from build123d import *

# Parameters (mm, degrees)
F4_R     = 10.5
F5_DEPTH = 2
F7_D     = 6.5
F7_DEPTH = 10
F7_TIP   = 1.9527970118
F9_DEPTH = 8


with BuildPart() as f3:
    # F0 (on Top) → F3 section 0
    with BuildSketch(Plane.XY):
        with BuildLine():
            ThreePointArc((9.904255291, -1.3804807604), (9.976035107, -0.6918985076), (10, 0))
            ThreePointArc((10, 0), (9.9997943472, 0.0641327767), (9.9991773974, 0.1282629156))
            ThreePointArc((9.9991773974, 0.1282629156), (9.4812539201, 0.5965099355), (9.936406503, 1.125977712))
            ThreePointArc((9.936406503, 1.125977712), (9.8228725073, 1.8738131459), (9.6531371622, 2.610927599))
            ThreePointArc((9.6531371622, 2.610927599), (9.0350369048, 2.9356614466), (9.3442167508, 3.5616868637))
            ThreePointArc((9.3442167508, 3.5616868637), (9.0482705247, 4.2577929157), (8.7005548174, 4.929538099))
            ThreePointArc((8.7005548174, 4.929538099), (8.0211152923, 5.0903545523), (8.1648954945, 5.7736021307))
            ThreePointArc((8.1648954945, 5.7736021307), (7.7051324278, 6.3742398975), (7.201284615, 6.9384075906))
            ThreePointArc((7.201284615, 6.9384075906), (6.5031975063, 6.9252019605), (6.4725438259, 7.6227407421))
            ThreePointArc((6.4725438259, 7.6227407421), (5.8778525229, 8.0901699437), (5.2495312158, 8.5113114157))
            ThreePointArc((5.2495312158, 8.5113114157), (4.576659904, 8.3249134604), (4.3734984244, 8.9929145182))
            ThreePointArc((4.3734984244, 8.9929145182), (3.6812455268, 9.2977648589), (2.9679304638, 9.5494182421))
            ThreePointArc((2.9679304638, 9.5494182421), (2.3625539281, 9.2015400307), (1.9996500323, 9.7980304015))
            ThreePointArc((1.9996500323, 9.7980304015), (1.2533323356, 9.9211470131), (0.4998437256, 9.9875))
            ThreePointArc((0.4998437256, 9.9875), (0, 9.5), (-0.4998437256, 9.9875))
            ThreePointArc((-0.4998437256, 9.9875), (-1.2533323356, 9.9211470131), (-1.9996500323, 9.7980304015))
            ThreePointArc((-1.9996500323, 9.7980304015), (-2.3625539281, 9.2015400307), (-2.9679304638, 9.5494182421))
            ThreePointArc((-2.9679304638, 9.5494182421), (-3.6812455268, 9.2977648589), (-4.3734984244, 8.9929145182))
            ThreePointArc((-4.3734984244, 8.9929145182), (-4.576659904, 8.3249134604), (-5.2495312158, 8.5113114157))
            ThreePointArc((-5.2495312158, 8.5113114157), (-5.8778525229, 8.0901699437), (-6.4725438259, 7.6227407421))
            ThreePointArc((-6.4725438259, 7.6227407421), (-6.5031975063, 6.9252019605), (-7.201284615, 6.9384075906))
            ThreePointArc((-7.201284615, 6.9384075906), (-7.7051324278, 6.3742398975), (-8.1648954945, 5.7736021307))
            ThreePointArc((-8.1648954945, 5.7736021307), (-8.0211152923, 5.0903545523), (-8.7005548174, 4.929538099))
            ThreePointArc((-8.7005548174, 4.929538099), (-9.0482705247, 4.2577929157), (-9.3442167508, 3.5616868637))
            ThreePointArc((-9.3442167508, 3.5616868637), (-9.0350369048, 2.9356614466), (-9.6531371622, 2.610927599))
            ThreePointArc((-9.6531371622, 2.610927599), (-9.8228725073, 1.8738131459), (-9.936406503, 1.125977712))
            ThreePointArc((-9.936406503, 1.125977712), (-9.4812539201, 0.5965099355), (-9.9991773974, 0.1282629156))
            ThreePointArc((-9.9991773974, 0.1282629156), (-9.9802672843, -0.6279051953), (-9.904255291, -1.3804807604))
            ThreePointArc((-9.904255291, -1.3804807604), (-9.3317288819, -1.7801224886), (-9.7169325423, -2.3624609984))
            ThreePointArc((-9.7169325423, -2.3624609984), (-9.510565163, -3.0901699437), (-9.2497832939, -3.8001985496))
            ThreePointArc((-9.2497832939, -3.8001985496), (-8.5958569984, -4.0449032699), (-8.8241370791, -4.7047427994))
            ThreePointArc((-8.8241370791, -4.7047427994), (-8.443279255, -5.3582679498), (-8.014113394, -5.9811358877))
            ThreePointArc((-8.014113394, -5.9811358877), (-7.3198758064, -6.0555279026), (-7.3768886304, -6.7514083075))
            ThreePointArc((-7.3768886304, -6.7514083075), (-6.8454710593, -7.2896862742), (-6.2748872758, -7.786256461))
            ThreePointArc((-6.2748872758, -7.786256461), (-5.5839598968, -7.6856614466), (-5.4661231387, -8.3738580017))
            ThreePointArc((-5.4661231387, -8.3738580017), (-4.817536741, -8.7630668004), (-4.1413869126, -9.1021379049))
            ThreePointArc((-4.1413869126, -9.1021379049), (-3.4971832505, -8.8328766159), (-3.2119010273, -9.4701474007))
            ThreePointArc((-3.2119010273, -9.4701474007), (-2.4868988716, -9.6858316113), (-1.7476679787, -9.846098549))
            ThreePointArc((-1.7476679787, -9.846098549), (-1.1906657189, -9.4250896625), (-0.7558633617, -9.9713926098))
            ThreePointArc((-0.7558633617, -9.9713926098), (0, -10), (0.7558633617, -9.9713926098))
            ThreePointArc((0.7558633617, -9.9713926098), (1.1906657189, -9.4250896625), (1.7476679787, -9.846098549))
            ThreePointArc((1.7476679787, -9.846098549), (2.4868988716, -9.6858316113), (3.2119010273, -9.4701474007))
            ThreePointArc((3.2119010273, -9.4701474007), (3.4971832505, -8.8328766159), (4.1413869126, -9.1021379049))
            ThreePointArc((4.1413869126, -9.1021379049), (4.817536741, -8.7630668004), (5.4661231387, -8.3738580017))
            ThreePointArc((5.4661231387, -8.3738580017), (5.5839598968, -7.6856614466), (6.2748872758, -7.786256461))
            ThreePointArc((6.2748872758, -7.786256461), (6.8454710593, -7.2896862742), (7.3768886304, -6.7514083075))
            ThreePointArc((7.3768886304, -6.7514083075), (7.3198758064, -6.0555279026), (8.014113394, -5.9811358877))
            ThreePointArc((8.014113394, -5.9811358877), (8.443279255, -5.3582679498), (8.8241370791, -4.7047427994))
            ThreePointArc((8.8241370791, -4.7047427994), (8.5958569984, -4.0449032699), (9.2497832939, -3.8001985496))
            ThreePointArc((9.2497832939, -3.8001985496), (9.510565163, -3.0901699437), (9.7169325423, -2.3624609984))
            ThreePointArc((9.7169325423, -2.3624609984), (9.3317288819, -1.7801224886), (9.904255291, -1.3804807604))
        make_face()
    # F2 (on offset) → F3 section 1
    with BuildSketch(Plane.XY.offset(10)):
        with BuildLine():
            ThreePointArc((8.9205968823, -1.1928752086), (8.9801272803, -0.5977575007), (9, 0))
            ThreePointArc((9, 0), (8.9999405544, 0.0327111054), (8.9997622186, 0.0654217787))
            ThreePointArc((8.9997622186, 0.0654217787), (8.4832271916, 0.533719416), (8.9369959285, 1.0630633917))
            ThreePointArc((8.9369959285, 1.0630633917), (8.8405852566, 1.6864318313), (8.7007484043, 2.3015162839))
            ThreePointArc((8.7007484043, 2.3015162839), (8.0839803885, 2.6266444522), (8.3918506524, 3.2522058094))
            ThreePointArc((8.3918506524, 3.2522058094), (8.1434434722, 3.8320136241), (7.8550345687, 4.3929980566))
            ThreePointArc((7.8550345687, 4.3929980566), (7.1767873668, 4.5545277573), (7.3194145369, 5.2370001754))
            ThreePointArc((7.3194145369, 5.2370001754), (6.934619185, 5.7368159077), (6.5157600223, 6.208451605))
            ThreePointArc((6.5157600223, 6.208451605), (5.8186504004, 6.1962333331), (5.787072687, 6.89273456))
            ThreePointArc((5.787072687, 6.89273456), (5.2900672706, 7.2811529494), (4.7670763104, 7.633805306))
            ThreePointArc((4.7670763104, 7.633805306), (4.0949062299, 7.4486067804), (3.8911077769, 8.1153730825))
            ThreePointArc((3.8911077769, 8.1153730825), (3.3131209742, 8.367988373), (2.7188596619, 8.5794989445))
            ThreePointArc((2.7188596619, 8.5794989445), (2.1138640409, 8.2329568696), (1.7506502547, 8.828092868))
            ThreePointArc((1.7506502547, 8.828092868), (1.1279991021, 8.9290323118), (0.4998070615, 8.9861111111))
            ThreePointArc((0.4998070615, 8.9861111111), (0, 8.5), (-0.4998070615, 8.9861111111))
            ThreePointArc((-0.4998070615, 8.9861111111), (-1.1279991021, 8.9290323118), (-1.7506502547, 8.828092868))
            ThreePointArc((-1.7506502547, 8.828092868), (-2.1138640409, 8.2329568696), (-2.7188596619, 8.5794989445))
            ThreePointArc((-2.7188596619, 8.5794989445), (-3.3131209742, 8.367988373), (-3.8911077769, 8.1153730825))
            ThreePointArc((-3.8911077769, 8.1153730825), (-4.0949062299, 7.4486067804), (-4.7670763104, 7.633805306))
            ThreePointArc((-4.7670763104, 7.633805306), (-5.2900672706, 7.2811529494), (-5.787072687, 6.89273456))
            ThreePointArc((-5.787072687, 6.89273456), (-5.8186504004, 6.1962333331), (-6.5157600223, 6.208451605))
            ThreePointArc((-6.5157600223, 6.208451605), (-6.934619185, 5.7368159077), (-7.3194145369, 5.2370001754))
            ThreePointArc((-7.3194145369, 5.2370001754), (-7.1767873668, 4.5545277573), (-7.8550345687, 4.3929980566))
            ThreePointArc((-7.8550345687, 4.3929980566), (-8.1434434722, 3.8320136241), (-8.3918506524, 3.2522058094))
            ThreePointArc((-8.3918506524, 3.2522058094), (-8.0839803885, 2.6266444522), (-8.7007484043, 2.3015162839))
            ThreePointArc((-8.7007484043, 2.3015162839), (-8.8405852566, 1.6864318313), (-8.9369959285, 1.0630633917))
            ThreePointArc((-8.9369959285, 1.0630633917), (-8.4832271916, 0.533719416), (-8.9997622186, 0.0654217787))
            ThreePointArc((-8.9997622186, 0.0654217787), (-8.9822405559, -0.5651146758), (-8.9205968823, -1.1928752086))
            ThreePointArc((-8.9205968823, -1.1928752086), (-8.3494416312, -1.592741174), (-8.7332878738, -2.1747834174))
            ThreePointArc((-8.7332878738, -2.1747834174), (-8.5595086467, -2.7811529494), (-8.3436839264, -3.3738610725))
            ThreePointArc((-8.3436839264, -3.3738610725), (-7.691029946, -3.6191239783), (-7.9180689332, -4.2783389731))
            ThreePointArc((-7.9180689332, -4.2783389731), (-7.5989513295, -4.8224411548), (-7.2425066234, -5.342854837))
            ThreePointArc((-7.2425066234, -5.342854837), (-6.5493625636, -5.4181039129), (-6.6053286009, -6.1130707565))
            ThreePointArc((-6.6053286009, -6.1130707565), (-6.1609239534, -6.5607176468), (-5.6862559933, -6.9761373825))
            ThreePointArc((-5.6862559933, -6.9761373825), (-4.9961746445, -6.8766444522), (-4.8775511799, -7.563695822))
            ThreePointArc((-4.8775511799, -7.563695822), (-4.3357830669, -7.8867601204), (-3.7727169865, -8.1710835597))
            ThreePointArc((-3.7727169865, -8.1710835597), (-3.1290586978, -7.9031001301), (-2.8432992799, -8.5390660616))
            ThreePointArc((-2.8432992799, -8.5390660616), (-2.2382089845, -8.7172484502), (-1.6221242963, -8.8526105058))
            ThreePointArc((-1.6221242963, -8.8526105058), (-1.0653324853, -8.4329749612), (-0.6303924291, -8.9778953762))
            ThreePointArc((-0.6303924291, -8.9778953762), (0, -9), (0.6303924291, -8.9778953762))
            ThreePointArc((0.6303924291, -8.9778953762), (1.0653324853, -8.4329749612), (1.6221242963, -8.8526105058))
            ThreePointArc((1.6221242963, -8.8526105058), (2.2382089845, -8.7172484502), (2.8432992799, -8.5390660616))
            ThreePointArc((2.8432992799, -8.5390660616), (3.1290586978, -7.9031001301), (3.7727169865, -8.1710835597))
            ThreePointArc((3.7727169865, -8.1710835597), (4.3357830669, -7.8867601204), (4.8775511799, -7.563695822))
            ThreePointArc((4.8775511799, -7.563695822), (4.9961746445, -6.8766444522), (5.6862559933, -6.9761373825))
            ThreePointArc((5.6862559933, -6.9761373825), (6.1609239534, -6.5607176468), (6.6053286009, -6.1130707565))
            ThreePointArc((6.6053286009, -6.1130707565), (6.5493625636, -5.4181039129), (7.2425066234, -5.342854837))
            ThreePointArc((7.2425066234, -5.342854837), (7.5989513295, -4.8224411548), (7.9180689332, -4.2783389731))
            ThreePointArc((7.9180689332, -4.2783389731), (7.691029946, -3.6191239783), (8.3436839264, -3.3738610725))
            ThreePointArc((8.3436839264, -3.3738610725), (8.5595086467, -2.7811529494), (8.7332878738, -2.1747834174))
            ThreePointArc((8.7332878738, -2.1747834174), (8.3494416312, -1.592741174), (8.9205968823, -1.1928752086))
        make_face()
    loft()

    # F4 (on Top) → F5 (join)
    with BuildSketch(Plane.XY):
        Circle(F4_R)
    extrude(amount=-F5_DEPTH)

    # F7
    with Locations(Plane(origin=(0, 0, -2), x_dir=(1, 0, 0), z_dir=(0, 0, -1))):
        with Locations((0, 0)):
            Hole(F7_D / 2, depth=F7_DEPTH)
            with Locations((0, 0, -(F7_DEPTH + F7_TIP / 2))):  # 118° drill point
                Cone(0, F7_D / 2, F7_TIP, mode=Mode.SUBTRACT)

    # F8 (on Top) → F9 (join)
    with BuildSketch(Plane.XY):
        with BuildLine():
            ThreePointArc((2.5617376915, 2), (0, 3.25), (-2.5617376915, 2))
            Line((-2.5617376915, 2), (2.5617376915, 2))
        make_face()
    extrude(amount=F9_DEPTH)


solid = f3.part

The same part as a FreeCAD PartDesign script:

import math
import FreeCAD as App
import Part
import Sketcher
from FreeCAD import Vector
Q = App.Units.Quantity

doc = App.newDocument("Part")
body = doc.addObject("PartDesign::Body", "Body")

# Sketch on XY plane
sketch1 = body.newObject("Sketcher::SketchObject", "Sketch")
sketch1.AttachmentSupport = (doc.getObject("XY_Plane"), [""])
sketch1.MapMode = "FlatFace"
sketch1.addGeometry([
    Part.ArcOfCircle(Part.Circle(Vector(0, 0, 0), Vector(0, 0, 1), 10), math.radians(-7.93), math.radians(0)),  # 0
    Part.ArcOfCircle(Part.Circle(Vector(0, 0, 0), Vector(0, 0, 1), 10), math.radians(0), math.radians(0.73)),  # 1
    Part.ArcOfCircle(Part.Circle(Vector(9.98, 0.63, 0), Vector(0, 0, 1), 0.5), math.radians(95), math.radians(272)),  # 2
    Part.ArcOfCircle(Part.Circle(Vector(0, 0, 0), Vector(0, 0, 1), 10), math.radians(6.47), math.radians(15.13)),  # 3
    Part.ArcOfCircle(Part.Circle(Vector(9.51, 3.09, 0), Vector(0, 0, 1), 0.5), math.radians(109), math.radians(287)),  # 4
    Part.ArcOfCircle(Part.Circle(Vector(0, 0, 0), Vector(0, 0, 1), 10), math.radians(20.87), math.radians(29.53)),  # 5
    Part.ArcOfCircle(Part.Circle(Vector(8.44, 5.36, 0), Vector(0, 0, 1), 0.5), math.radians(124), math.radians(301)),  # 6
    Part.ArcOfCircle(Part.Circle(Vector(0, 0, 0), Vector(0, 0, 1), 10), math.radians(35.27), math.radians(43.93)),  # 7
    Part.ArcOfCircle(Part.Circle(Vector(6.85, 7.29, 0), Vector(0, 0, 1), 0.5), math.radians(138), math.radians(315)),  # 8
    Part.ArcOfCircle(Part.Circle(Vector(0, 0, 0), Vector(0, 0, 1), 10), math.radians(49.67), math.radians(58.33)),  # 9
    Part.ArcOfCircle(Part.Circle(Vector(4.82, 8.76, 0), Vector(0, 0, 1), 0.5), math.radians(153), math.radians(330)),  # 10
    Part.ArcOfCircle(Part.Circle(Vector(0, 0, 0), Vector(0, 0, 1), 10), math.radians(64.07), math.radians(72.73)),  # 11
    Part.ArcOfCircle(Part.Circle(Vector(2.49, 9.69, 0), Vector(0, 0, 1), 0.5), math.radians(167), math.radians(344)),  # 12
    Part.ArcOfCircle(Part.Circle(Vector(0, 0, 0), Vector(0, 0, 1), 10), math.radians(78.47), math.radians(87.13)),  # 13
    Part.ArcOfCircle(Part.Circle(Vector(0, 10, 0), Vector(0, 0, 1), 0.5), math.radians(-179), math.radians(-1)),  # 14
    Part.ArcOfCircle(Part.Circle(Vector(0, 0, 0), Vector(0, 0, 1), 10), math.radians(92.87), math.radians(101.53)),  # 15
    Part.ArcOfCircle(Part.Circle(Vector(-2.49, 9.69, 0), Vector(0, 0, 1), 0.5), math.radians(-164), math.radians(13)),  # 16
    Part.ArcOfCircle(Part.Circle(Vector(0, 0, 0), Vector(0, 0, 1), 10), math.radians(107.27), math.radians(115.93)),  # 17
    Part.ArcOfCircle(Part.Circle(Vector(-4.82, 8.76, 0), Vector(0, 0, 1), 0.5), math.radians(-150), math.radians(27)),  # 18
    Part.ArcOfCircle(Part.Circle(Vector(0, 0, 0), Vector(0, 0, 1), 10), math.radians(121.67), math.radians(130.33)),  # 19
    Part.ArcOfCircle(Part.Circle(Vector(-6.85, 7.29, 0), Vector(0, 0, 1), 0.5), math.radians(-135), math.radians(42)),  # 20
    Part.ArcOfCircle(Part.Circle(Vector(0, 0, 0), Vector(0, 0, 1), 10), math.radians(136.07), math.radians(144.73)),  # 21
    Part.ArcOfCircle(Part.Circle(Vector(-8.44, 5.36, 0), Vector(0, 0, 1), 0.5), math.radians(-121), math.radians(56)),  # 22
    Part.ArcOfCircle(Part.Circle(Vector(0, 0, 0), Vector(0, 0, 1), 10), math.radians(150.47), math.radians(159.13)),  # 23
    Part.ArcOfCircle(Part.Circle(Vector(-9.51, 3.09, 0), Vector(0, 0, 1), 0.5), math.radians(-107), math.radians(71)),  # 24
    Part.ArcOfCircle(Part.Circle(Vector(0, 0, 0), Vector(0, 0, 1), 10), math.radians(164.87), math.radians(173.53)),  # 25
    Part.ArcOfCircle(Part.Circle(Vector(-9.98, 0.63, 0), Vector(0, 0, 1), 0.5), math.radians(-92), math.radians(85)),  # 26
    Part.ArcOfCircle(Part.Circle(Vector(0, 0, 0), Vector(0, 0, 1), 10), math.radians(179.27), math.radians(187.93)),  # 27
    Part.ArcOfCircle(Part.Circle(Vector(-9.82, -1.87, 0), Vector(0, 0, 1), 0.5), math.radians(-78), math.radians(99)),  # 28
    Part.ArcOfCircle(Part.Circle(Vector(0, 0, 0), Vector(0, 0, 1), 10), math.radians(-166.33), math.radians(-157.67)),  # 29
    Part.ArcOfCircle(Part.Circle(Vector(-9.05, -4.26, 0), Vector(0, 0, 1), 0.5), math.radians(-63), math.radians(114)),  # 30
    Part.ArcOfCircle(Part.Circle(Vector(0, 0, 0), Vector(0, 0, 1), 10), math.radians(-151.93), math.radians(-143.27)),  # 31
    Part.ArcOfCircle(Part.Circle(Vector(-7.71, -6.37, 0), Vector(0, 0, 1), 0.5), math.radians(-49), math.radians(128)),  # 32
    Part.ArcOfCircle(Part.Circle(Vector(0, 0, 0), Vector(0, 0, 1), 10), math.radians(-137.53), math.radians(-128.87)),  # 33
    Part.ArcOfCircle(Part.Circle(Vector(-5.88, -8.09, 0), Vector(0, 0, 1), 0.5), math.radians(-35), math.radians(143)),  # 34
    Part.ArcOfCircle(Part.Circle(Vector(0, 0, 0), Vector(0, 0, 1), 10), math.radians(-123.13), math.radians(-114.47)),  # 35
    Part.ArcOfCircle(Part.Circle(Vector(-3.68, -9.3, 0), Vector(0, 0, 1), 0.5), math.radians(-20), math.radians(157)),  # 36
    Part.ArcOfCircle(Part.Circle(Vector(0, 0, 0), Vector(0, 0, 1), 10), math.radians(-108.73), math.radians(-100.07)),  # 37
    Part.ArcOfCircle(Part.Circle(Vector(-1.25, -9.92, 0), Vector(0, 0, 1), 0.5), math.radians(-6), math.radians(171)),  # 38
    Part.ArcOfCircle(Part.Circle(Vector(0, 0, 0), Vector(0, 0, 1), 10), math.radians(-94.33), math.radians(-85.67)),  # 39
    Part.ArcOfCircle(Part.Circle(Vector(1.25, -9.92, 0), Vector(0, 0, 1), 0.5), math.radians(9), math.radians(186)),  # 40
    Part.ArcOfCircle(Part.Circle(Vector(0, 0, 0), Vector(0, 0, 1), 10), math.radians(-79.93), math.radians(-71.27)),  # 41
    Part.ArcOfCircle(Part.Circle(Vector(3.68, -9.3, 0), Vector(0, 0, 1), 0.5), math.radians(23), math.radians(200)),  # 42
    Part.ArcOfCircle(Part.Circle(Vector(0, 0, 0), Vector(0, 0, 1), 10), math.radians(-65.53), math.radians(-56.87)),  # 43
    Part.ArcOfCircle(Part.Circle(Vector(5.88, -8.09, 0), Vector(0, 0, 1), 0.5), math.radians(37), math.radians(215)),  # 44
    Part.ArcOfCircle(Part.Circle(Vector(0, 0, 0), Vector(0, 0, 1), 10), math.radians(-51.13), math.radians(-42.47)),  # 45
    Part.ArcOfCircle(Part.Circle(Vector(7.71, -6.37, 0), Vector(0, 0, 1), 0.5), math.radians(52), math.radians(229)),  # 46
    Part.ArcOfCircle(Part.Circle(Vector(0, 0, 0), Vector(0, 0, 1), 10), math.radians(-36.73), math.radians(-28.07)),  # 47
    Part.ArcOfCircle(Part.Circle(Vector(9.05, -4.26, 0), Vector(0, 0, 1), 0.5), math.radians(66), math.radians(243)),  # 48
    Part.ArcOfCircle(Part.Circle(Vector(0, 0, 0), Vector(0, 0, 1), 10), math.radians(-22.33), math.radians(-13.67)),  # 49
    Part.ArcOfCircle(Part.Circle(Vector(9.82, -1.87, 0), Vector(0, 0, 1), 0.5), math.radians(81), math.radians(258)),  # 50
], False)
sketch1.addConstraint([
    Sketcher.Constraint("Tangent", 0, 2, 1, 1),
    Sketcher.Constraint("Coincident", 1, 2, 2, 2),
    Sketcher.Constraint("Coincident", 2, 1, 3, 1),
    Sketcher.Constraint("Coincident", 3, 2, 4, 2),
    Sketcher.Constraint("Coincident", 4, 1, 5, 1),
    Sketcher.Constraint("Coincident", 5, 2, 6, 2),
    Sketcher.Constraint("Coincident", 6, 1, 7, 1),
    Sketcher.Constraint("Coincident", 7, 2, 8, 2),
    Sketcher.Constraint("Coincident", 8, 1, 9, 1),
    Sketcher.Constraint("Coincident", 9, 2, 10, 2),
    Sketcher.Constraint("Coincident", 10, 1, 11, 1),
    Sketcher.Constraint("Coincident", 11, 2, 12, 2),
    Sketcher.Constraint("Coincident", 12, 1, 13, 1),
    Sketcher.Constraint("Coincident", 13, 2, 14, 2),
    Sketcher.Constraint("Coincident", 14, 1, 15, 1),
    Sketcher.Constraint("Coincident", 15, 2, 16, 2),
    Sketcher.Constraint("Coincident", 16, 1, 17, 1),
    Sketcher.Constraint("Coincident", 17, 2, 18, 2),
    Sketcher.Constraint("Coincident", 18, 1, 19, 1),
    Sketcher.Constraint("Coincident", 19, 2, 20, 2),
    Sketcher.Constraint("Coincident", 20, 1, 21, 1),
    Sketcher.Constraint("Coincident", 21, 2, 22, 2),
    Sketcher.Constraint("Coincident", 22, 1, 23, 1),
    Sketcher.Constraint("Coincident", 23, 2, 24, 2),
    Sketcher.Constraint("Coincident", 24, 1, 25, 1),
    Sketcher.Constraint("Coincident", 25, 2, 26, 2),
    Sketcher.Constraint("Coincident", 26, 1, 27, 1),
    Sketcher.Constraint("Coincident", 27, 2, 28, 2),
    Sketcher.Constraint("Coincident", 28, 1, 29, 1),
    Sketcher.Constraint("Coincident", 29, 2, 30, 2),
    Sketcher.Constraint("Coincident", 30, 1, 31, 1),
    Sketcher.Constraint("Coincident", 31, 2, 32, 2),
    Sketcher.Constraint("Coincident", 32, 1, 33, 1),
    Sketcher.Constraint("Coincident", 33, 2, 34, 2),
    Sketcher.Constraint("Coincident", 34, 1, 35, 1),
    Sketcher.Constraint("Coincident", 35, 2, 36, 2),
    Sketcher.Constraint("Coincident", 36, 1, 37, 1),
    Sketcher.Constraint("Coincident", 37, 2, 38, 2),
    Sketcher.Constraint("Coincident", 38, 1, 39, 1),
    Sketcher.Constraint("Coincident", 39, 2, 40, 2),
    Sketcher.Constraint("Coincident", 40, 1, 41, 1),
    Sketcher.Constraint("Coincident", 41, 2, 42, 2),
    Sketcher.Constraint("Coincident", 42, 1, 43, 1),
    Sketcher.Constraint("Coincident", 43, 2, 44, 2),
    Sketcher.Constraint("Coincident", 44, 1, 45, 1),
    Sketcher.Constraint("Coincident", 45, 2, 46, 2),
    Sketcher.Constraint("Coincident", 46, 1, 47, 1),
    Sketcher.Constraint("Coincident", 47, 2, 48, 2),
    Sketcher.Constraint("Coincident", 48, 1, 49, 1),
    Sketcher.Constraint("Coincident", 49, 2, 50, 2),
    Sketcher.Constraint("Coincident", 50, 1, 0, 1),
    Sketcher.Constraint("Coincident", 0, 3, -1, 1),
    Sketcher.Constraint("Coincident", 3, 3, -1, 1),
    Sketcher.Constraint("Coincident", 5, 3, -1, 1),
    Sketcher.Constraint("Coincident", 7, 3, -1, 1),
    Sketcher.Constraint("Coincident", 9, 3, -1, 1),
    Sketcher.Constraint("Coincident", 11, 3, -1, 1),
    Sketcher.Constraint("Coincident", 13, 3, -1, 1),
    Sketcher.Constraint("Coincident", 15, 3, -1, 1),
    Sketcher.Constraint("Coincident", 17, 3, -1, 1),
    Sketcher.Constraint("Coincident", 19, 3, -1, 1),
    Sketcher.Constraint("Coincident", 21, 3, -1, 1),
    Sketcher.Constraint("Coincident", 23, 3, -1, 1),
    Sketcher.Constraint("Coincident", 25, 3, -1, 1),
    Sketcher.Constraint("Coincident", 27, 3, -1, 1),
    Sketcher.Constraint("Coincident", 29, 3, -1, 1),
    Sketcher.Constraint("Coincident", 31, 3, -1, 1),
    Sketcher.Constraint("Coincident", 33, 3, -1, 1),
    Sketcher.Constraint("Coincident", 35, 3, -1, 1),
    Sketcher.Constraint("Coincident", 37, 3, -1, 1),
    Sketcher.Constraint("Coincident", 39, 3, -1, 1),
    Sketcher.Constraint("Coincident", 41, 3, -1, 1),
    Sketcher.Constraint("Coincident", 43, 3, -1, 1),
    Sketcher.Constraint("Coincident", 45, 3, -1, 1),
    Sketcher.Constraint("Coincident", 47, 3, -1, 1),
    Sketcher.Constraint("Coincident", 49, 3, -1, 1),
    Sketcher.Constraint("Equal", 0, 1),
    Sketcher.Constraint("Equal", 1, 3),
    Sketcher.Constraint("Equal", 2, 4),
    Sketcher.Constraint("Equal", 3, 5),
    Sketcher.Constraint("Equal", 4, 6),
    Sketcher.Constraint("Equal", 5, 7),
    Sketcher.Constraint("Equal", 6, 8),
    Sketcher.Constraint("Equal", 7, 9),
    Sketcher.Constraint("Equal", 8, 10),
    Sketcher.Constraint("Equal", 9, 11),
    Sketcher.Constraint("Equal", 10, 12),
    Sketcher.Constraint("Equal", 11, 13),
    Sketcher.Constraint("Equal", 12, 14),
    Sketcher.Constraint("Equal", 13, 15),
    Sketcher.Constraint("Equal", 14, 16),
    Sketcher.Constraint("Equal", 15, 17),
    Sketcher.Constraint("Equal", 16, 18),
    Sketcher.Constraint("Equal", 17, 19),
    Sketcher.Constraint("Equal", 18, 20),
    Sketcher.Constraint("Equal", 19, 21),
    Sketcher.Constraint("Equal", 20, 22),
    Sketcher.Constraint("Equal", 21, 23),
    Sketcher.Constraint("Equal", 22, 24),
    Sketcher.Constraint("Equal", 23, 25),
    Sketcher.Constraint("Equal", 24, 26),
    Sketcher.Constraint("Equal", 25, 27),
    Sketcher.Constraint("Equal", 26, 28),
    Sketcher.Constraint("Equal", 27, 29),
    Sketcher.Constraint("Equal", 28, 30),
    Sketcher.Constraint("Equal", 29, 31),
    Sketcher.Constraint("Equal", 30, 32),
    Sketcher.Constraint("Equal", 31, 33),
    Sketcher.Constraint("Equal", 32, 34),
    Sketcher.Constraint("Equal", 33, 35),
    Sketcher.Constraint("Equal", 34, 36),
    Sketcher.Constraint("Equal", 35, 37),
    Sketcher.Constraint("Equal", 36, 38),
    Sketcher.Constraint("Equal", 37, 39),
    Sketcher.Constraint("Equal", 38, 40),
    Sketcher.Constraint("Equal", 39, 41),
    Sketcher.Constraint("Equal", 40, 42),
    Sketcher.Constraint("Equal", 41, 43),
    Sketcher.Constraint("Equal", 42, 44),
    Sketcher.Constraint("Equal", 43, 45),
    Sketcher.Constraint("Equal", 44, 46),
    Sketcher.Constraint("Equal", 45, 47),
    Sketcher.Constraint("Equal", 46, 48),
    Sketcher.Constraint("Equal", 47, 49),
    Sketcher.Constraint("Equal", 48, 50),
    Sketcher.Constraint("Symmetric", 12, 3, 16, 3, -2),
    Sketcher.Constraint("Symmetric", 10, 3, 18, 3, -2),
    Sketcher.Constraint("Symmetric", 8, 3, 20, 3, -2),
    Sketcher.Constraint("Symmetric", 6, 3, 22, 3, -2),
    Sketcher.Constraint("Symmetric", 4, 3, 24, 3, -2),
    Sketcher.Constraint("Symmetric", 2, 3, 26, 3, -2),
    Sketcher.Constraint("Symmetric", 38, 3, 40, 3, -2),
    Sketcher.Constraint("Symmetric", 36, 3, 42, 3, -2),
    Sketcher.Constraint("Symmetric", 34, 3, 44, 3, -2),
    Sketcher.Constraint("Symmetric", 32, 3, 46, 3, -2),
    Sketcher.Constraint("Symmetric", 30, 3, 48, 3, -2),
    Sketcher.Constraint("Symmetric", 28, 3, 50, 3, -2),
    Sketcher.Constraint("PointOnObject", 14, 3, -2),
    Sketcher.Constraint("PointOnObject", 0, 2, -1),
    Sketcher.Constraint("Radius", 0, Q("10 mm")),
    Sketcher.Constraint("Radius", 2, Q("0.5 mm")),
    Sketcher.Constraint("DistanceY", -1, 1, 14, 3, Q("10 mm")),
    Sketcher.Constraint("DistanceX", -1, 1, 12, 3, Q("2.486899 mm")),
    Sketcher.Constraint("DistanceX", -1, 1, 10, 1, Q("4.373498 mm")),
    Sketcher.Constraint("DistanceY", 29, 2, -1, 1, Q("3.800199 mm")),
    Sketcher.Constraint("DistanceX", 36, 1, -1, 1, Q("3.211901 mm")),
    Sketcher.Constraint("DistanceY", 37, 2, -1, 1, Q("9.846099 mm")),
    Sketcher.Constraint("DistanceY", -1, 1, 4, 3, Q("3.09017 mm")),
    Sketcher.Constraint("DistanceX", -1, 1, 6, 3, Q("8.443279 mm")),
    Sketcher.Constraint("DistanceX", -1, 1, 8, 3, Q("6.845471 mm")),
    Sketcher.Constraint("DistanceY", -1, 1, 12, 3, Q("9.685832 mm")),
    Sketcher.Constraint("DistanceX", 30, 3, -1, 1, Q("9.048271 mm")),
    Sketcher.Constraint("DistanceY", 32, 3, -1, 1, Q("6.37424 mm")),
    Sketcher.Constraint("DistanceY", 34, 3, -1, 1, Q("8.09017 mm")),
    Sketcher.Constraint("DistanceY", -1, 1, 5, 2, Q("4.929538 mm")),
    Sketcher.Constraint("DistanceY", -1, 1, 8, 1, Q("7.622741 mm")),
    Sketcher.Constraint("DistanceX", 18, 1, -1, 1, Q("5.249531 mm")),
    Sketcher.Constraint("DistanceY", 27, 2, -1, 1, Q("1.380481 mm")),
    Sketcher.Constraint("DistanceY", 28, 1, -1, 1, Q("2.362461 mm")),
    Sketcher.Constraint("DistanceX", 32, 1, -1, 1, Q("7.376889 mm")),
    Sketcher.Constraint("DistanceY", 34, 1, -1, 1, Q("8.373858 mm")),
    Sketcher.Constraint("DistanceX", -1, 1, 2, 3, Q("9.980267 mm")),
    Sketcher.Constraint("DistanceY", -1, 1, 2, 3, Q("0.627905 mm")),
    Sketcher.Constraint("DistanceX", -1, 1, 4, 3, Q("9.510565 mm")),
    Sketcher.Constraint("DistanceX", 36, 3, -1, 1, Q("3.681246 mm")),
    Sketcher.Constraint("DistanceX", 38, 3, -1, 1, Q("1.253332 mm")),
])

# Sketch on XY plane
sketch2 = body.newObject("Sketcher::SketchObject", "Sketch001")
sketch2.AttachmentSupport = (doc.getObject("XY_Plane"), [""])
sketch2.MapMode = "FlatFace"
sketch2.AttachmentOffset = App.Placement(Vector(0, 0, 10), App.Rotation())
sketch2.addGeometry([
    Part.ArcOfCircle(Part.Circle(Vector(0, 0, 0), Vector(0, 0, 1), 9), math.radians(-7.62), math.radians(0)),  # 0
    Part.ArcOfCircle(Part.Circle(Vector(0, 0, 0), Vector(0, 0, 1), 9), math.radians(0), math.radians(0.42)),  # 1
    Part.ArcOfCircle(Part.Circle(Vector(8.98, 0.57, 0), Vector(0, 0, 1), 0.5), math.radians(95), math.radians(272)),  # 2
    Part.ArcOfCircle(Part.Circle(Vector(0, 0, 0), Vector(0, 0, 1), 9), math.radians(6.78), math.radians(14.82)),  # 3
    Part.ArcOfCircle(Part.Circle(Vector(8.56, 2.78, 0), Vector(0, 0, 1), 0.5), math.radians(110), math.radians(286)),  # 4
    Part.ArcOfCircle(Part.Circle(Vector(0, 0, 0), Vector(0, 0, 1), 9), math.radians(21.18), math.radians(29.22)),  # 5
    Part.ArcOfCircle(Part.Circle(Vector(7.6, 4.82, 0), Vector(0, 0, 1), 0.5), math.radians(124), math.radians(301)),  # 6
    Part.ArcOfCircle(Part.Circle(Vector(0, 0, 0), Vector(0, 0, 1), 9), math.radians(35.58), math.radians(43.62)),  # 7
    Part.ArcOfCircle(Part.Circle(Vector(6.16, 6.56, 0), Vector(0, 0, 1), 0.5), math.radians(138), math.radians(315)),  # 8
    Part.ArcOfCircle(Part.Circle(Vector(0, 0, 0), Vector(0, 0, 1), 9), math.radians(49.98), math.radians(58.02)),  # 9
    Part.ArcOfCircle(Part.Circle(Vector(4.34, 7.89, 0), Vector(0, 0, 1), 0.5), math.radians(153), math.radians(330)),  # 10
    Part.ArcOfCircle(Part.Circle(Vector(0, 0, 0), Vector(0, 0, 1), 9), math.radians(64.38), math.radians(72.42)),  # 11
    Part.ArcOfCircle(Part.Circle(Vector(2.24, 8.72, 0), Vector(0, 0, 1), 0.5), math.radians(167), math.radians(344)),  # 12
    Part.ArcOfCircle(Part.Circle(Vector(0, 0, 0), Vector(0, 0, 1), 9), math.radians(78.78), math.radians(86.82)),  # 13
    Part.ArcOfCircle(Part.Circle(Vector(0, 9, 0), Vector(0, 0, 1), 0.5), math.radians(-178), math.radians(-2)),  # 14
    Part.ArcOfCircle(Part.Circle(Vector(0, 0, 0), Vector(0, 0, 1), 9), math.radians(93.18), math.radians(101.22)),  # 15
    Part.ArcOfCircle(Part.Circle(Vector(-2.24, 8.72, 0), Vector(0, 0, 1), 0.5), math.radians(-164), math.radians(13)),  # 16
    Part.ArcOfCircle(Part.Circle(Vector(0, 0, 0), Vector(0, 0, 1), 9), math.radians(107.58), math.radians(115.62)),  # 17
    Part.ArcOfCircle(Part.Circle(Vector(-4.34, 7.89, 0), Vector(0, 0, 1), 0.5), math.radians(-150), math.radians(27)),  # 18
    Part.ArcOfCircle(Part.Circle(Vector(0, 0, 0), Vector(0, 0, 1), 9), math.radians(121.98), math.radians(130.02)),  # 19
    Part.ArcOfCircle(Part.Circle(Vector(-6.16, 6.56, 0), Vector(0, 0, 1), 0.5), math.radians(-135), math.radians(42)),  # 20
    Part.ArcOfCircle(Part.Circle(Vector(0, 0, 0), Vector(0, 0, 1), 9), math.radians(136.38), math.radians(144.42)),  # 21
    Part.ArcOfCircle(Part.Circle(Vector(-7.6, 4.82, 0), Vector(0, 0, 1), 0.5), math.radians(-121), math.radians(56)),  # 22
    Part.ArcOfCircle(Part.Circle(Vector(0, 0, 0), Vector(0, 0, 1), 9), math.radians(150.78), math.radians(158.82)),  # 23
    Part.ArcOfCircle(Part.Circle(Vector(-8.56, 2.78, 0), Vector(0, 0, 1), 0.5), math.radians(-106), math.radians(70)),  # 24
    Part.ArcOfCircle(Part.Circle(Vector(0, 0, 0), Vector(0, 0, 1), 9), math.radians(165.18), math.radians(173.22)),  # 25
    Part.ArcOfCircle(Part.Circle(Vector(-8.98, 0.57, 0), Vector(0, 0, 1), 0.5), math.radians(-92), math.radians(85)),  # 26
    Part.ArcOfCircle(Part.Circle(Vector(0, 0, 0), Vector(0, 0, 1), 9), math.radians(179.58), math.radians(187.62)),  # 27
    Part.ArcOfCircle(Part.Circle(Vector(-8.84, -1.69, 0), Vector(0, 0, 1), 0.5), math.radians(-78), math.radians(99)),  # 28
    Part.ArcOfCircle(Part.Circle(Vector(0, 0, 0), Vector(0, 0, 1), 9), math.radians(-166.02), math.radians(-157.98)),  # 29
    Part.ArcOfCircle(Part.Circle(Vector(-8.14, -3.83, 0), Vector(0, 0, 1), 0.5), math.radians(-63), math.radians(114)),  # 30
    Part.ArcOfCircle(Part.Circle(Vector(0, 0, 0), Vector(0, 0, 1), 9), math.radians(-151.62), math.radians(-143.58)),  # 31
    Part.ArcOfCircle(Part.Circle(Vector(-6.93, -5.74, 0), Vector(0, 0, 1), 0.5), math.radians(-49), math.radians(128)),  # 32
    Part.ArcOfCircle(Part.Circle(Vector(0, 0, 0), Vector(0, 0, 1), 9), math.radians(-137.22), math.radians(-129.18)),  # 33
    Part.ArcOfCircle(Part.Circle(Vector(-5.29, -7.28, 0), Vector(0, 0, 1), 0.5), math.radians(-34), math.radians(142)),  # 34
    Part.ArcOfCircle(Part.Circle(Vector(0, 0, 0), Vector(0, 0, 1), 9), math.radians(-122.82), math.radians(-114.78)),  # 35
    Part.ArcOfCircle(Part.Circle(Vector(-3.31, -8.37, 0), Vector(0, 0, 1), 0.5), math.radians(-20), math.radians(157)),  # 36
    Part.ArcOfCircle(Part.Circle(Vector(0, 0, 0), Vector(0, 0, 1), 9), math.radians(-108.42), math.radians(-100.38)),  # 37
    Part.ArcOfCircle(Part.Circle(Vector(-1.13, -8.93, 0), Vector(0, 0, 1), 0.5), math.radians(-6), math.radians(171)),  # 38
    Part.ArcOfCircle(Part.Circle(Vector(0, 0, 0), Vector(0, 0, 1), 9), math.radians(-94.02), math.radians(-85.98)),  # 39
    Part.ArcOfCircle(Part.Circle(Vector(1.13, -8.93, 0), Vector(0, 0, 1), 0.5), math.radians(9), math.radians(186)),  # 40
    Part.ArcOfCircle(Part.Circle(Vector(0, 0, 0), Vector(0, 0, 1), 9), math.radians(-79.62), math.radians(-71.58)),  # 41
    Part.ArcOfCircle(Part.Circle(Vector(3.31, -8.37, 0), Vector(0, 0, 1), 0.5), math.radians(23), math.radians(200)),  # 42
    Part.ArcOfCircle(Part.Circle(Vector(0, 0, 0), Vector(0, 0, 1), 9), math.radians(-65.22), math.radians(-57.18)),  # 43
    Part.ArcOfCircle(Part.Circle(Vector(5.29, -7.28, 0), Vector(0, 0, 1), 0.5), math.radians(38), math.radians(214)),  # 44
    Part.ArcOfCircle(Part.Circle(Vector(0, 0, 0), Vector(0, 0, 1), 9), math.radians(-50.82), math.radians(-42.78)),  # 45
    Part.ArcOfCircle(Part.Circle(Vector(6.93, -5.74, 0), Vector(0, 0, 1), 0.5), math.radians(52), math.radians(229)),  # 46
    Part.ArcOfCircle(Part.Circle(Vector(0, 0, 0), Vector(0, 0, 1), 9), math.radians(-36.42), math.radians(-28.38)),  # 47
    Part.ArcOfCircle(Part.Circle(Vector(8.14, -3.83, 0), Vector(0, 0, 1), 0.5), math.radians(66), math.radians(243)),  # 48
    Part.ArcOfCircle(Part.Circle(Vector(0, 0, 0), Vector(0, 0, 1), 9), math.radians(-22.02), math.radians(-13.98)),  # 49
    Part.ArcOfCircle(Part.Circle(Vector(8.84, -1.69, 0), Vector(0, 0, 1), 0.5), math.radians(81), math.radians(258)),  # 50
], False)
sketch2.addConstraint([
    Sketcher.Constraint("Tangent", 0, 2, 1, 1),
    Sketcher.Constraint("Coincident", 1, 2, 2, 2),
    Sketcher.Constraint("Coincident", 2, 1, 3, 1),
    Sketcher.Constraint("Coincident", 3, 2, 4, 2),
    Sketcher.Constraint("Coincident", 4, 1, 5, 1),
    Sketcher.Constraint("Coincident", 5, 2, 6, 2),
    Sketcher.Constraint("Coincident", 6, 1, 7, 1),
    Sketcher.Constraint("Coincident", 7, 2, 8, 2),
    Sketcher.Constraint("Coincident", 8, 1, 9, 1),
    Sketcher.Constraint("Coincident", 9, 2, 10, 2),
    Sketcher.Constraint("Coincident", 10, 1, 11, 1),
    Sketcher.Constraint("Coincident", 11, 2, 12, 2),
    Sketcher.Constraint("Coincident", 12, 1, 13, 1),
    Sketcher.Constraint("Coincident", 13, 2, 14, 2),
    Sketcher.Constraint("Coincident", 14, 1, 15, 1),
    Sketcher.Constraint("Coincident", 15, 2, 16, 2),
    Sketcher.Constraint("Coincident", 16, 1, 17, 1),
    Sketcher.Constraint("Coincident", 17, 2, 18, 2),
    Sketcher.Constraint("Coincident", 18, 1, 19, 1),
    Sketcher.Constraint("Coincident", 19, 2, 20, 2),
    Sketcher.Constraint("Coincident", 20, 1, 21, 1),
    Sketcher.Constraint("Coincident", 21, 2, 22, 2),
    Sketcher.Constraint("Coincident", 22, 1, 23, 1),
    Sketcher.Constraint("Coincident", 23, 2, 24, 2),
    Sketcher.Constraint("Coincident", 24, 1, 25, 1),
    Sketcher.Constraint("Coincident", 25, 2, 26, 2),
    Sketcher.Constraint("Coincident", 26, 1, 27, 1),
    Sketcher.Constraint("Coincident", 27, 2, 28, 2),
    Sketcher.Constraint("Coincident", 28, 1, 29, 1),
    Sketcher.Constraint("Coincident", 29, 2, 30, 2),
    Sketcher.Constraint("Coincident", 30, 1, 31, 1),
    Sketcher.Constraint("Coincident", 31, 2, 32, 2),
    Sketcher.Constraint("Coincident", 32, 1, 33, 1),
    Sketcher.Constraint("Coincident", 33, 2, 34, 2),
    Sketcher.Constraint("Coincident", 34, 1, 35, 1),
    Sketcher.Constraint("Coincident", 35, 2, 36, 2),
    Sketcher.Constraint("Coincident", 36, 1, 37, 1),
    Sketcher.Constraint("Coincident", 37, 2, 38, 2),
    Sketcher.Constraint("Coincident", 38, 1, 39, 1),
    Sketcher.Constraint("Coincident", 39, 2, 40, 2),
    Sketcher.Constraint("Coincident", 40, 1, 41, 1),
    Sketcher.Constraint("Coincident", 41, 2, 42, 2),
    Sketcher.Constraint("Coincident", 42, 1, 43, 1),
    Sketcher.Constraint("Coincident", 43, 2, 44, 2),
    Sketcher.Constraint("Coincident", 44, 1, 45, 1),
    Sketcher.Constraint("Coincident", 45, 2, 46, 2),
    Sketcher.Constraint("Coincident", 46, 1, 47, 1),
    Sketcher.Constraint("Coincident", 47, 2, 48, 2),
    Sketcher.Constraint("Coincident", 48, 1, 49, 1),
    Sketcher.Constraint("Coincident", 49, 2, 50, 2),
    Sketcher.Constraint("Coincident", 50, 1, 0, 1),
    Sketcher.Constraint("Coincident", 0, 3, -1, 1),
    Sketcher.Constraint("Coincident", 3, 3, -1, 1),
    Sketcher.Constraint("Coincident", 5, 3, -1, 1),
    Sketcher.Constraint("Coincident", 7, 3, -1, 1),
    Sketcher.Constraint("Coincident", 9, 3, -1, 1),
    Sketcher.Constraint("Coincident", 11, 3, -1, 1),
    Sketcher.Constraint("Coincident", 13, 3, -1, 1),
    Sketcher.Constraint("Coincident", 15, 3, -1, 1),
    Sketcher.Constraint("Coincident", 17, 3, -1, 1),
    Sketcher.Constraint("Coincident", 19, 3, -1, 1),
    Sketcher.Constraint("Coincident", 21, 3, -1, 1),
    Sketcher.Constraint("Coincident", 23, 3, -1, 1),
    Sketcher.Constraint("Coincident", 25, 3, -1, 1),
    Sketcher.Constraint("Coincident", 27, 3, -1, 1),
    Sketcher.Constraint("Coincident", 29, 3, -1, 1),
    Sketcher.Constraint("Coincident", 31, 3, -1, 1),
    Sketcher.Constraint("Coincident", 33, 3, -1, 1),
    Sketcher.Constraint("Coincident", 35, 3, -1, 1),
    Sketcher.Constraint("Coincident", 37, 3, -1, 1),
    Sketcher.Constraint("Coincident", 39, 3, -1, 1),
    Sketcher.Constraint("Coincident", 41, 3, -1, 1),
    Sketcher.Constraint("Coincident", 43, 3, -1, 1),
    Sketcher.Constraint("Coincident", 45, 3, -1, 1),
    Sketcher.Constraint("Coincident", 47, 3, -1, 1),
    Sketcher.Constraint("Coincident", 49, 3, -1, 1),
    Sketcher.Constraint("Equal", 0, 3),
    Sketcher.Constraint("Equal", 2, 4),
    Sketcher.Constraint("Equal", 3, 5),
    Sketcher.Constraint("Equal", 4, 6),
    Sketcher.Constraint("Equal", 5, 7),
    Sketcher.Constraint("Equal", 6, 8),
    Sketcher.Constraint("Equal", 7, 9),
    Sketcher.Constraint("Equal", 8, 10),
    Sketcher.Constraint("Equal", 9, 11),
    Sketcher.Constraint("Equal", 10, 12),
    Sketcher.Constraint("Equal", 11, 13),
    Sketcher.Constraint("Equal", 12, 14),
    Sketcher.Constraint("Equal", 13, 15),
    Sketcher.Constraint("Equal", 14, 16),
    Sketcher.Constraint("Equal", 15, 17),
    Sketcher.Constraint("Equal", 16, 18),
    Sketcher.Constraint("Equal", 17, 19),
    Sketcher.Constraint("Equal", 18, 20),
    Sketcher.Constraint("Equal", 19, 21),
    Sketcher.Constraint("Equal", 20, 22),
    Sketcher.Constraint("Equal", 21, 23),
    Sketcher.Constraint("Equal", 22, 24),
    Sketcher.Constraint("Equal", 23, 25),
    Sketcher.Constraint("Equal", 24, 26),
    Sketcher.Constraint("Equal", 25, 27),
    Sketcher.Constraint("Equal", 26, 28),
    Sketcher.Constraint("Equal", 27, 29),
    Sketcher.Constraint("Equal", 28, 30),
    Sketcher.Constraint("Equal", 29, 31),
    Sketcher.Constraint("Equal", 30, 32),
    Sketcher.Constraint("Equal", 31, 33),
    Sketcher.Constraint("Equal", 32, 34),
    Sketcher.Constraint("Equal", 33, 35),
    Sketcher.Constraint("Equal", 34, 36),
    Sketcher.Constraint("Equal", 35, 37),
    Sketcher.Constraint("Equal", 36, 38),
    Sketcher.Constraint("Equal", 37, 39),
    Sketcher.Constraint("Equal", 38, 40),
    Sketcher.Constraint("Equal", 39, 41),
    Sketcher.Constraint("Equal", 40, 42),
    Sketcher.Constraint("Equal", 41, 43),
    Sketcher.Constraint("Equal", 42, 44),
    Sketcher.Constraint("Equal", 43, 45),
    Sketcher.Constraint("Equal", 44, 46),
    Sketcher.Constraint("Equal", 45, 47),
    Sketcher.Constraint("Equal", 46, 48),
    Sketcher.Constraint("Equal", 47, 49),
    Sketcher.Constraint("Equal", 48, 50),
    Sketcher.Constraint("Symmetric", 12, 3, 16, 3, -2),
    Sketcher.Constraint("Symmetric", 10, 3, 18, 3, -2),
    Sketcher.Constraint("Symmetric", 8, 3, 20, 3, -2),
    Sketcher.Constraint("Symmetric", 6, 3, 22, 3, -2),
    Sketcher.Constraint("Symmetric", 4, 3, 24, 3, -2),
    Sketcher.Constraint("Symmetric", 2, 3, 26, 3, -2),
    Sketcher.Constraint("Symmetric", 38, 3, 40, 3, -2),
    Sketcher.Constraint("Symmetric", 36, 3, 42, 3, -2),
    Sketcher.Constraint("Symmetric", 34, 3, 44, 3, -2),
    Sketcher.Constraint("Symmetric", 32, 3, 46, 3, -2),
    Sketcher.Constraint("Symmetric", 30, 3, 48, 3, -2),
    Sketcher.Constraint("Symmetric", 28, 3, 50, 3, -2),
    Sketcher.Constraint("PointOnObject", 14, 3, -2),
    Sketcher.Constraint("PointOnObject", 0, 2, -1),
    Sketcher.Constraint("Radius", 0, Q("9 mm")),
    Sketcher.Constraint("Radius", 2, Q("0.5 mm")),
    Sketcher.Constraint("DistanceY", -1, 1, 14, 3, Q("9 mm")),
    Sketcher.Constraint("Radius", 1, Q("9.000009 mm")),
    Sketcher.Constraint("DistanceX", 38, 3, -1, 1, Q("1.127999 mm")),
    Sketcher.Constraint("DistanceY", -1, 1, 5, 2, Q("4.392998 mm")),
    Sketcher.Constraint("DistanceY", -1, 1, 6, 1, Q("5.237 mm")),
    Sketcher.Constraint("DistanceY", -1, 1, 11, 2, Q("8.579499 mm")),
    Sketcher.Constraint("DistanceX", 36, 1, -1, 1, Q("2.843299 mm")),
    Sketcher.Constraint("DistanceX", -1, 1, 2, 3, Q("8.982241 mm")),
    Sketcher.Constraint("DistanceX", -1, 1, 4, 3, Q("8.559509 mm")),
    Sketcher.Constraint("DistanceY", -1, 1, 10, 3, Q("7.88676 mm")),
    Sketcher.Constraint("DistanceX", -1, 1, 12, 3, Q("2.238209 mm")),
    Sketcher.Constraint("DistanceY", 28, 3, -1, 1, Q("1.686432 mm")),
    Sketcher.Constraint("DistanceX", 32, 3, -1, 1, Q("6.934619 mm")),
    Sketcher.Constraint("DistanceX", 36, 3, -1, 1, Q("3.313121 mm")),
    Sketcher.Constraint("DistanceY", -1, 1, 1, 2, Q("0.065422 mm")),
    Sketcher.Constraint("DistanceX", -1, 1, 3, 2, Q("8.700748 mm")),
    Sketcher.Constraint("DistanceX", -1, 1, 7, 2, Q("6.51576 mm")),
    Sketcher.Constraint("DistanceY", 29, 2, -1, 1, Q("3.373861 mm")),
    Sketcher.Constraint("DistanceX", 30, 1, -1, 1, Q("7.918069 mm")),
    Sketcher.Constraint("DistanceX", 32, 1, -1, 1, Q("6.605329 mm")),
    Sketcher.Constraint("DistanceX", 34, 1, -1, 1, Q("4.877551 mm")),
    Sketcher.Constraint("DistanceY", 37, 2, -1, 1, Q("8.852611 mm")),
    Sketcher.Constraint("DistanceX", -1, 1, 8, 3, Q("6.160924 mm")),
    Sketcher.Constraint("DistanceX", -1, 1, 10, 3, Q("4.335783 mm")),
    Sketcher.Constraint("DistanceX", 28, 3, -1, 1, Q("8.840585 mm")),
    Sketcher.Constraint("DistanceX", 34, 3, -1, 1, Q("5.290067 mm")),
])

additiveloft = body.newObject("PartDesign::AdditiveLoft", "AdditiveLoft")
additiveloft.Profile = sketch1
additiveloft.Sections = [sketch2]

# Sketch on XY plane
sketch3 = body.newObject("Sketcher::SketchObject", "Sketch002")
sketch3.AttachmentSupport = (doc.getObject("XY_Plane"), [""])
sketch3.MapMode = "FlatFace"
sketch3.addGeometry(Part.Circle(Vector(0, 0, 0), Vector(0, 0, 1), 10), False)
sketch3.addConstraint([
    Sketcher.Constraint("Coincident", 0, 3, -1, 1),
    Sketcher.Constraint("Diameter", 0, Q("21 mm")),
])
pad1 = body.newObject("PartDesign::Pad", "Pad")
pad1.Profile = sketch3
pad1.Length = 2
pad1.Reversed = True

# Sketch on XY plane
sketch4 = body.newObject("Sketcher::SketchObject", "Sketch003")
sketch4.AttachmentSupport = (doc.getObject("XY_Plane"), [""])
sketch4.MapMode = "FlatFace"
sketch4.AttachmentOffset = App.Placement(Vector(0, 0, -2), App.Rotation())
sketch4.addGeometry(Part.Circle(Vector(0, 0, 0), Vector(0, 0, 1), 3.2), False)
sketch4.addConstraint([
    Sketcher.Constraint("Coincident", 0, 3, -1, 1),
    Sketcher.Constraint("Diameter", 0, Q("6.5 mm")),
])
doc.recompute()
hole = body.newObject("PartDesign::Hole", "Hole")
hole.Profile = sketch4
hole.ThreadType = "None"
hole.Diameter = 6.5
hole.DepthType = "Dimension"
hole.Depth = 10
hole.DrillPoint = "Angled"
hole.DrillPointAngle = 118
hole.Reversed = True

# Sketch on XY plane
sketch5 = body.newObject("Sketcher::SketchObject", "Sketch004")
sketch5.AttachmentSupport = (doc.getObject("XY_Plane"), [""])
sketch5.MapMode = "FlatFace"
sketch5.addGeometry([
    Part.ArcOfCircle(Part.Circle(Vector(0, 0, 0), Vector(0, 0, 1), 3.2), math.radians(38), math.radians(142)),
    Part.LineSegment(Vector(-2.6, 2, 0), Vector(2.6, 2, 0)),
], False)
sketch5.addConstraint([
    Sketcher.Constraint("Coincident", 0, 1, 1, 2),
    Sketcher.Constraint("Coincident", 1, 1, 0, 2),
    Sketcher.Constraint("Horizontal", 1),
    Sketcher.Constraint("Coincident", 0, 3, -1, 1),
    Sketcher.Constraint("Radius", 0, Q("3.25 mm")),
    Sketcher.Constraint("DistanceY", -1, 1, 0, 1, Q("2 mm")),
])
pad2 = body.newObject("PartDesign::Pad", "Pad001")
pad2.Profile = sketch5
pad2.Length = 8

doc.recompute()
